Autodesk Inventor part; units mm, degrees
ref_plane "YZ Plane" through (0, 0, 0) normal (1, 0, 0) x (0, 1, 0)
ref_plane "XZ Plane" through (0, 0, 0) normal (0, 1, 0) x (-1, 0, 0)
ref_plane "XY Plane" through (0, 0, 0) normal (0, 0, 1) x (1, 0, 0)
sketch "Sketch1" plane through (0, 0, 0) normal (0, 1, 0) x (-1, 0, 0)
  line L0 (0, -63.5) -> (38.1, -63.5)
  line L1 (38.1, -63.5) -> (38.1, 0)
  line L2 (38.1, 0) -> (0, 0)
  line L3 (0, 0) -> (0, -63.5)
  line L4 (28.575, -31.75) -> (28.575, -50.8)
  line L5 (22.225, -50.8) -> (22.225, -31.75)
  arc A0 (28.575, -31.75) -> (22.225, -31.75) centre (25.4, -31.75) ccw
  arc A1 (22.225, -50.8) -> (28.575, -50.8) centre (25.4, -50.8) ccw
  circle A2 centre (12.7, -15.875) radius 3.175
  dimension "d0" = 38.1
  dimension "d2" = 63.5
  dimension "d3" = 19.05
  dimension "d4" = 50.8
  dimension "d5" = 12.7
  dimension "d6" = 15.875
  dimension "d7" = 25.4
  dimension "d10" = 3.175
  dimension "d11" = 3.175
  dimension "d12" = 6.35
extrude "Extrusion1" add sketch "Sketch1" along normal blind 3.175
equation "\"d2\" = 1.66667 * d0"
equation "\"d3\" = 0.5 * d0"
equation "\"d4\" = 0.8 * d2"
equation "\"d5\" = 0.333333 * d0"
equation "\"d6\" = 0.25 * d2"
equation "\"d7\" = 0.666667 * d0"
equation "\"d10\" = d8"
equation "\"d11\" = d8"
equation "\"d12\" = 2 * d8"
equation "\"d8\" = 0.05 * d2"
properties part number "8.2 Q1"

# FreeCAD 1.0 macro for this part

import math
import FreeCAD as App
import Part
import Sketcher

V = App.Vector
Q = App.Units.Quantity

doc = App.newDocument("Part")
body = doc.addObject("PartDesign::Body", "Body")

# Sketch on XZ plane
sketch1 = body.newObject("Sketcher::SketchObject", "Sketch")
sketch1.AttachmentSupport = (doc.getObject("XZ_Plane"), [""])
sketch1.MapMode = "FlatFace"
sketch1.addGeometry([
    Part.LineSegment(V(0, 0, 0), V(0, -63.5, 0)),  # 0
    Part.LineSegment(V(0, -63.5, 0), V(-38.1, -63.5, 0)),  # 1
    Part.LineSegment(V(-38.1, -63.5, 0), V(-38.1, 0, 0)),  # 2
    Part.LineSegment(V(-38.1, 0, 0), V(0, 0, 0)),  # 3
    Part.ArcOfCircle(Part.Circle(V(-25.4, -31.75, 0), V(0, 0, 1), 3.175), math.radians(0), math.radians(180)),  # 4
    Part.LineSegment(V(-28.575, -31.75, 0), V(-28.575, -50.8, 0)),  # 5
    Part.ArcOfCircle(Part.Circle(V(-25.4, -50.8, 0), V(0, 0, 1), 3.175), math.radians(180), math.radians(360)),  # 6
    Part.LineSegment(V(-22.225, -50.8, 0), V(-22.225, -31.75, 0)),  # 7
    Part.Circle(V(-12.7, -15.875, 0), V(0, 0, 1), 3.175),  # 8
], False)
sketch1.addConstraint([
    Sketcher.Constraint("Coincident", 0, 2, 1, 1),
    Sketcher.Constraint("Coincident", 1, 2, 2, 1),
    Sketcher.Constraint("Coincident", 2, 2, 3, 1),
    Sketcher.Constraint("Coincident", 3, 2, 0, 1),
    Sketcher.Constraint("Tangent", 4, 2, 5, 1),
    Sketcher.Constraint("Tangent", 5, 2, 6, 1),
    Sketcher.Constraint("Tangent", 6, 2, 7, 1),
    Sketcher.Constraint("Tangent", 7, 2, 4, 1),
    Sketcher.Constraint("Vertical", 0),
    Sketcher.Constraint("Horizontal", 1),
    Sketcher.Constraint("Vertical", 2),
    Sketcher.Constraint("Horizontal", 3),
    Sketcher.Constraint("Vertical", 5),
    Sketcher.Constraint("Vertical", 7),
    Sketcher.Constraint("Coincident", 3, 2, -1, 1),
    Sketcher.Constraint("Equal", 6, 8),
    Sketcher.Constraint("Diameter", 8, Q("0.25 in")),
    Sketcher.Constraint("DistanceX", 1, 2, 1, 1, Q("1.5 in")),
    Sketcher.Constraint("DistanceY", 0, 2, 0, 1, Q("2.5 in")),
    Sketcher.Constraint("DistanceX", 4, 3, -1, 1, Q("1 in")),
    Sketcher.Constraint("DistanceY", 6, 3, -1, 1, Q("2 in")),
    Sketcher.Constraint("DistanceX", 1, 2, 8, 3, Q("1 in")),
    Sketcher.Constraint("DistanceY", 5, 2, 5, 1, Q("0.75 in")),
    Sketcher.Constraint("DistanceY", 8, 3, -1, 1, Q("0.625 in")),
])
pad1 = body.newObject("PartDesign::Pad", "Pad")
pad1.Profile = sketch1
pad1.Length = Q("0.125 in")
pad1.Reversed = True

doc.recompute()
